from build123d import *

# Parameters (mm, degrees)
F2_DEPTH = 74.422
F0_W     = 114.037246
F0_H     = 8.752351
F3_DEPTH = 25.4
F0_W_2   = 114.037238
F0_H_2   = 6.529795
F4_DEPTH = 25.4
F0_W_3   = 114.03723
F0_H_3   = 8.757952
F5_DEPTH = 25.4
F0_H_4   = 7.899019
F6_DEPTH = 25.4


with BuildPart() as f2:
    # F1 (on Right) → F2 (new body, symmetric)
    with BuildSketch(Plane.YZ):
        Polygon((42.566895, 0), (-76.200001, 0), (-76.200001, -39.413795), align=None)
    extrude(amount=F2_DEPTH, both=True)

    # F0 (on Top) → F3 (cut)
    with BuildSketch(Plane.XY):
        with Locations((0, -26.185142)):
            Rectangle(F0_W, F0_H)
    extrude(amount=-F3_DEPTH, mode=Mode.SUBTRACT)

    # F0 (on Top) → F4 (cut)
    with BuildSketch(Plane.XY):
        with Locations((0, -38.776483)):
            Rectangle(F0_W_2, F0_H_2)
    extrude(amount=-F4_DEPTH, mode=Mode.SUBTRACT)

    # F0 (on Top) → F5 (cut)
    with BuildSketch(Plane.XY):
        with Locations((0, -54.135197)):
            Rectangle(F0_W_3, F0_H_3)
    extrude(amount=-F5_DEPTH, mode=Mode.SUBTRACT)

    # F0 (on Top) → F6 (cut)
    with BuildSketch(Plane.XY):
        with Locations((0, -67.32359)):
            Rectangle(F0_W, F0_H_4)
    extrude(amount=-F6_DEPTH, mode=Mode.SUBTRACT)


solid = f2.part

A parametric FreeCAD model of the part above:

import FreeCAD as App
import Part
import Sketcher
Q = App.Units.Quantity


def add_polygon(sketch, points):
    """Adds a closed chain of lines whose ends are joined by coincident constraints."""
    first, n = sketch.GeometryCount, len(points)
    for a, b in zip(points, points[1:] + points[:1]):
        sketch.addGeometry(Part.LineSegment(App.Vector(*a, 0), App.Vector(*b, 0)), False)
    for i in range(n):
        sketch.addConstraint(Sketcher.Constraint("Coincident", first + i, 2, first + (i + 1) % n, 1))

doc = App.newDocument("Part")
body = doc.addObject("PartDesign::Body", "Body")

# Sketch on YZ plane
sketch1 = body.newObject("Sketcher::SketchObject", "Sketch")
sketch1.AttachmentSupport = (doc.getObject("YZ_Plane"), [""])
sketch1.MapMode = "FlatFace"
add_polygon(sketch1, [(42.566895, 0), (-76.200001, 0), (-76.200001, -39.413795)])  # lines 0-2
sketch1.addConstraint([
    Sketcher.Constraint("Horizontal", 0),
    Sketcher.Constraint("Vertical", 1),
    Sketcher.Constraint("PointOnObject", 0, 2, -1),
    Sketcher.Constraint("DistanceX", 0, 2, -1, 1, Q("3 in")),
    Sketcher.Constraint("DistanceX", 0, 2, 0, 1, Q("118.766896 mm")),
    Sketcher.Constraint("DistanceY", 1, 2, 1, 1, Q("39.413795 mm")),
])
pad1 = body.newObject("PartDesign::Pad", "Pad")
pad1.Profile = sketch1
pad1.Length = Q("5.86 in")
pad1.Midplane = True

# Sketch on XY plane
sketch2 = body.newObject("Sketcher::SketchObject", "Sketch001")
sketch2.AttachmentSupport = (doc.getObject("XY_Plane"), [""])
sketch2.MapMode = "FlatFace"
add_polygon(sketch2, [(-57.018623, -21.808967), (-57.018623, -30.561318), (57.018623, -30.561318), (57.018623, -21.808967)])  # lines 0-3
sketch2.addConstraint([
    Sketcher.Constraint("Vertical", 0),
    Sketcher.Constraint("Horizontal", 1),
    Sketcher.Constraint("Vertical", 2),
    Sketcher.Constraint("Horizontal", 3),
    Sketcher.Constraint("DistanceY", 0, 2, 0, 1, Q("8.752351 mm")),
    Sketcher.Constraint("DistanceX", 1, 1, 1, 2, Q("114.037246 mm")),
    Sketcher.Constraint("DistanceX", 0, 2, -1, 1, Q("57.018623 mm")),
    Sketcher.Constraint("DistanceY", 0, 2, -1, 1, Q("30.561318 mm")),
])
pocket1 = body.newObject("PartDesign::Pocket", "Pocket")
pocket1.Profile = sketch2
pocket1.Length = Q("1 in")

# Sketch on XY plane
sketch3 = body.newObject("Sketcher::SketchObject", "Sketch002")
sketch3.AttachmentSupport = (doc.getObject("XY_Plane"), [""])
sketch3.MapMode = "FlatFace"
add_polygon(sketch3, [(-57.018619, -35.511586), (-57.018619, -42.041381), (57.018619, -42.041381), (57.018619, -35.511586)])  # lines 0-3
sketch3.addConstraint([
    Sketcher.Constraint("Vertical", 0),
    Sketcher.Constraint("Horizontal", 1),
    Sketcher.Constraint("Vertical", 2),
    Sketcher.Constraint("Horizontal", 3),
    Sketcher.Constraint("DistanceX", 1, 1, 1, 2, Q("114.037238 mm")),
    Sketcher.Constraint("DistanceY", 0, 2, 0, 1, Q("6.529795 mm")),
    Sketcher.Constraint("DistanceX", 0, 2, -1, 1, Q("57.018619 mm")),
    Sketcher.Constraint("DistanceY", 0, 2, -1, 1, Q("42.041381 mm")),
])
pocket2 = body.newObject("PartDesign::Pocket", "Pocket001")
pocket2.Profile = sketch3
pocket2.Length = Q("1 in")

# Sketch on XY plane
sketch4 = body.newObject("Sketcher::SketchObject", "Sketch003")
sketch4.AttachmentSupport = (doc.getObject("XY_Plane"), [""])
sketch4.MapMode = "FlatFace"
add_polygon(sketch4, [(-57.018615, -49.756221), (-57.018615, -58.514173), (57.018615, -58.514173), (57.018615, -49.756221)])  # lines 0-3
sketch4.addConstraint([
    Sketcher.Constraint("Vertical", 0),
    Sketcher.Constraint("Horizontal", 1),
    Sketcher.Constraint("Vertical", 2),
    Sketcher.Constraint("Horizontal", 3),
    Sketcher.Constraint("DistanceX", 1, 1, 1, 2, Q("114.03723 mm")),
    Sketcher.Constraint("DistanceY", 0, 2, 0, 1, Q("8.757952 mm")),
    Sketcher.Constraint("DistanceY", 2, 2, -1, 1, Q("49.756221 mm")),
    Sketcher.Constraint("DistanceX", 0, 2, -1, 1, Q("57.018615 mm")),
])
pocket3 = body.newObject("PartDesign::Pocket", "Pocket002")
pocket3.Profile = sketch4
pocket3.Length = Q("1 in")

# Sketch on XY plane
sketch5 = body.newObject("Sketcher::SketchObject", "Sketch004")
sketch5.AttachmentSupport = (doc.getObject("XY_Plane"), [""])
sketch5.MapMode = "FlatFace"
add_polygon(sketch5, [(-57.018623, -63.37408), (-57.018623, -71.2731), (57.018623, -71.2731), (57.018623, -63.37408)])  # lines 0-3
sketch5.addConstraint([
    Sketcher.Constraint("Vertical", 0),
    Sketcher.Constraint("Horizontal", 1),
    Sketcher.Constraint("Vertical", 2),
    Sketcher.Constraint("Horizontal", 3),
    Sketcher.Constraint("DistanceY", 0, 2, 0, 1, Q("7.899019 mm")),
    Sketcher.Constraint("DistanceY", 0, 2, -1, 1, Q("71.2731 mm")),
    Sketcher.Constraint("DistanceX", 1, 1, 1, 2, Q("114.037246 mm")),
    Sketcher.Constraint("DistanceX", 0, 2, -1, 1, Q("57.018623 mm")),
])
pocket4 = body.newObject("PartDesign::Pocket", "Pocket003")
pocket4.Profile = sketch5
pocket4.Length = Q("1 in")

doc.recompute()
